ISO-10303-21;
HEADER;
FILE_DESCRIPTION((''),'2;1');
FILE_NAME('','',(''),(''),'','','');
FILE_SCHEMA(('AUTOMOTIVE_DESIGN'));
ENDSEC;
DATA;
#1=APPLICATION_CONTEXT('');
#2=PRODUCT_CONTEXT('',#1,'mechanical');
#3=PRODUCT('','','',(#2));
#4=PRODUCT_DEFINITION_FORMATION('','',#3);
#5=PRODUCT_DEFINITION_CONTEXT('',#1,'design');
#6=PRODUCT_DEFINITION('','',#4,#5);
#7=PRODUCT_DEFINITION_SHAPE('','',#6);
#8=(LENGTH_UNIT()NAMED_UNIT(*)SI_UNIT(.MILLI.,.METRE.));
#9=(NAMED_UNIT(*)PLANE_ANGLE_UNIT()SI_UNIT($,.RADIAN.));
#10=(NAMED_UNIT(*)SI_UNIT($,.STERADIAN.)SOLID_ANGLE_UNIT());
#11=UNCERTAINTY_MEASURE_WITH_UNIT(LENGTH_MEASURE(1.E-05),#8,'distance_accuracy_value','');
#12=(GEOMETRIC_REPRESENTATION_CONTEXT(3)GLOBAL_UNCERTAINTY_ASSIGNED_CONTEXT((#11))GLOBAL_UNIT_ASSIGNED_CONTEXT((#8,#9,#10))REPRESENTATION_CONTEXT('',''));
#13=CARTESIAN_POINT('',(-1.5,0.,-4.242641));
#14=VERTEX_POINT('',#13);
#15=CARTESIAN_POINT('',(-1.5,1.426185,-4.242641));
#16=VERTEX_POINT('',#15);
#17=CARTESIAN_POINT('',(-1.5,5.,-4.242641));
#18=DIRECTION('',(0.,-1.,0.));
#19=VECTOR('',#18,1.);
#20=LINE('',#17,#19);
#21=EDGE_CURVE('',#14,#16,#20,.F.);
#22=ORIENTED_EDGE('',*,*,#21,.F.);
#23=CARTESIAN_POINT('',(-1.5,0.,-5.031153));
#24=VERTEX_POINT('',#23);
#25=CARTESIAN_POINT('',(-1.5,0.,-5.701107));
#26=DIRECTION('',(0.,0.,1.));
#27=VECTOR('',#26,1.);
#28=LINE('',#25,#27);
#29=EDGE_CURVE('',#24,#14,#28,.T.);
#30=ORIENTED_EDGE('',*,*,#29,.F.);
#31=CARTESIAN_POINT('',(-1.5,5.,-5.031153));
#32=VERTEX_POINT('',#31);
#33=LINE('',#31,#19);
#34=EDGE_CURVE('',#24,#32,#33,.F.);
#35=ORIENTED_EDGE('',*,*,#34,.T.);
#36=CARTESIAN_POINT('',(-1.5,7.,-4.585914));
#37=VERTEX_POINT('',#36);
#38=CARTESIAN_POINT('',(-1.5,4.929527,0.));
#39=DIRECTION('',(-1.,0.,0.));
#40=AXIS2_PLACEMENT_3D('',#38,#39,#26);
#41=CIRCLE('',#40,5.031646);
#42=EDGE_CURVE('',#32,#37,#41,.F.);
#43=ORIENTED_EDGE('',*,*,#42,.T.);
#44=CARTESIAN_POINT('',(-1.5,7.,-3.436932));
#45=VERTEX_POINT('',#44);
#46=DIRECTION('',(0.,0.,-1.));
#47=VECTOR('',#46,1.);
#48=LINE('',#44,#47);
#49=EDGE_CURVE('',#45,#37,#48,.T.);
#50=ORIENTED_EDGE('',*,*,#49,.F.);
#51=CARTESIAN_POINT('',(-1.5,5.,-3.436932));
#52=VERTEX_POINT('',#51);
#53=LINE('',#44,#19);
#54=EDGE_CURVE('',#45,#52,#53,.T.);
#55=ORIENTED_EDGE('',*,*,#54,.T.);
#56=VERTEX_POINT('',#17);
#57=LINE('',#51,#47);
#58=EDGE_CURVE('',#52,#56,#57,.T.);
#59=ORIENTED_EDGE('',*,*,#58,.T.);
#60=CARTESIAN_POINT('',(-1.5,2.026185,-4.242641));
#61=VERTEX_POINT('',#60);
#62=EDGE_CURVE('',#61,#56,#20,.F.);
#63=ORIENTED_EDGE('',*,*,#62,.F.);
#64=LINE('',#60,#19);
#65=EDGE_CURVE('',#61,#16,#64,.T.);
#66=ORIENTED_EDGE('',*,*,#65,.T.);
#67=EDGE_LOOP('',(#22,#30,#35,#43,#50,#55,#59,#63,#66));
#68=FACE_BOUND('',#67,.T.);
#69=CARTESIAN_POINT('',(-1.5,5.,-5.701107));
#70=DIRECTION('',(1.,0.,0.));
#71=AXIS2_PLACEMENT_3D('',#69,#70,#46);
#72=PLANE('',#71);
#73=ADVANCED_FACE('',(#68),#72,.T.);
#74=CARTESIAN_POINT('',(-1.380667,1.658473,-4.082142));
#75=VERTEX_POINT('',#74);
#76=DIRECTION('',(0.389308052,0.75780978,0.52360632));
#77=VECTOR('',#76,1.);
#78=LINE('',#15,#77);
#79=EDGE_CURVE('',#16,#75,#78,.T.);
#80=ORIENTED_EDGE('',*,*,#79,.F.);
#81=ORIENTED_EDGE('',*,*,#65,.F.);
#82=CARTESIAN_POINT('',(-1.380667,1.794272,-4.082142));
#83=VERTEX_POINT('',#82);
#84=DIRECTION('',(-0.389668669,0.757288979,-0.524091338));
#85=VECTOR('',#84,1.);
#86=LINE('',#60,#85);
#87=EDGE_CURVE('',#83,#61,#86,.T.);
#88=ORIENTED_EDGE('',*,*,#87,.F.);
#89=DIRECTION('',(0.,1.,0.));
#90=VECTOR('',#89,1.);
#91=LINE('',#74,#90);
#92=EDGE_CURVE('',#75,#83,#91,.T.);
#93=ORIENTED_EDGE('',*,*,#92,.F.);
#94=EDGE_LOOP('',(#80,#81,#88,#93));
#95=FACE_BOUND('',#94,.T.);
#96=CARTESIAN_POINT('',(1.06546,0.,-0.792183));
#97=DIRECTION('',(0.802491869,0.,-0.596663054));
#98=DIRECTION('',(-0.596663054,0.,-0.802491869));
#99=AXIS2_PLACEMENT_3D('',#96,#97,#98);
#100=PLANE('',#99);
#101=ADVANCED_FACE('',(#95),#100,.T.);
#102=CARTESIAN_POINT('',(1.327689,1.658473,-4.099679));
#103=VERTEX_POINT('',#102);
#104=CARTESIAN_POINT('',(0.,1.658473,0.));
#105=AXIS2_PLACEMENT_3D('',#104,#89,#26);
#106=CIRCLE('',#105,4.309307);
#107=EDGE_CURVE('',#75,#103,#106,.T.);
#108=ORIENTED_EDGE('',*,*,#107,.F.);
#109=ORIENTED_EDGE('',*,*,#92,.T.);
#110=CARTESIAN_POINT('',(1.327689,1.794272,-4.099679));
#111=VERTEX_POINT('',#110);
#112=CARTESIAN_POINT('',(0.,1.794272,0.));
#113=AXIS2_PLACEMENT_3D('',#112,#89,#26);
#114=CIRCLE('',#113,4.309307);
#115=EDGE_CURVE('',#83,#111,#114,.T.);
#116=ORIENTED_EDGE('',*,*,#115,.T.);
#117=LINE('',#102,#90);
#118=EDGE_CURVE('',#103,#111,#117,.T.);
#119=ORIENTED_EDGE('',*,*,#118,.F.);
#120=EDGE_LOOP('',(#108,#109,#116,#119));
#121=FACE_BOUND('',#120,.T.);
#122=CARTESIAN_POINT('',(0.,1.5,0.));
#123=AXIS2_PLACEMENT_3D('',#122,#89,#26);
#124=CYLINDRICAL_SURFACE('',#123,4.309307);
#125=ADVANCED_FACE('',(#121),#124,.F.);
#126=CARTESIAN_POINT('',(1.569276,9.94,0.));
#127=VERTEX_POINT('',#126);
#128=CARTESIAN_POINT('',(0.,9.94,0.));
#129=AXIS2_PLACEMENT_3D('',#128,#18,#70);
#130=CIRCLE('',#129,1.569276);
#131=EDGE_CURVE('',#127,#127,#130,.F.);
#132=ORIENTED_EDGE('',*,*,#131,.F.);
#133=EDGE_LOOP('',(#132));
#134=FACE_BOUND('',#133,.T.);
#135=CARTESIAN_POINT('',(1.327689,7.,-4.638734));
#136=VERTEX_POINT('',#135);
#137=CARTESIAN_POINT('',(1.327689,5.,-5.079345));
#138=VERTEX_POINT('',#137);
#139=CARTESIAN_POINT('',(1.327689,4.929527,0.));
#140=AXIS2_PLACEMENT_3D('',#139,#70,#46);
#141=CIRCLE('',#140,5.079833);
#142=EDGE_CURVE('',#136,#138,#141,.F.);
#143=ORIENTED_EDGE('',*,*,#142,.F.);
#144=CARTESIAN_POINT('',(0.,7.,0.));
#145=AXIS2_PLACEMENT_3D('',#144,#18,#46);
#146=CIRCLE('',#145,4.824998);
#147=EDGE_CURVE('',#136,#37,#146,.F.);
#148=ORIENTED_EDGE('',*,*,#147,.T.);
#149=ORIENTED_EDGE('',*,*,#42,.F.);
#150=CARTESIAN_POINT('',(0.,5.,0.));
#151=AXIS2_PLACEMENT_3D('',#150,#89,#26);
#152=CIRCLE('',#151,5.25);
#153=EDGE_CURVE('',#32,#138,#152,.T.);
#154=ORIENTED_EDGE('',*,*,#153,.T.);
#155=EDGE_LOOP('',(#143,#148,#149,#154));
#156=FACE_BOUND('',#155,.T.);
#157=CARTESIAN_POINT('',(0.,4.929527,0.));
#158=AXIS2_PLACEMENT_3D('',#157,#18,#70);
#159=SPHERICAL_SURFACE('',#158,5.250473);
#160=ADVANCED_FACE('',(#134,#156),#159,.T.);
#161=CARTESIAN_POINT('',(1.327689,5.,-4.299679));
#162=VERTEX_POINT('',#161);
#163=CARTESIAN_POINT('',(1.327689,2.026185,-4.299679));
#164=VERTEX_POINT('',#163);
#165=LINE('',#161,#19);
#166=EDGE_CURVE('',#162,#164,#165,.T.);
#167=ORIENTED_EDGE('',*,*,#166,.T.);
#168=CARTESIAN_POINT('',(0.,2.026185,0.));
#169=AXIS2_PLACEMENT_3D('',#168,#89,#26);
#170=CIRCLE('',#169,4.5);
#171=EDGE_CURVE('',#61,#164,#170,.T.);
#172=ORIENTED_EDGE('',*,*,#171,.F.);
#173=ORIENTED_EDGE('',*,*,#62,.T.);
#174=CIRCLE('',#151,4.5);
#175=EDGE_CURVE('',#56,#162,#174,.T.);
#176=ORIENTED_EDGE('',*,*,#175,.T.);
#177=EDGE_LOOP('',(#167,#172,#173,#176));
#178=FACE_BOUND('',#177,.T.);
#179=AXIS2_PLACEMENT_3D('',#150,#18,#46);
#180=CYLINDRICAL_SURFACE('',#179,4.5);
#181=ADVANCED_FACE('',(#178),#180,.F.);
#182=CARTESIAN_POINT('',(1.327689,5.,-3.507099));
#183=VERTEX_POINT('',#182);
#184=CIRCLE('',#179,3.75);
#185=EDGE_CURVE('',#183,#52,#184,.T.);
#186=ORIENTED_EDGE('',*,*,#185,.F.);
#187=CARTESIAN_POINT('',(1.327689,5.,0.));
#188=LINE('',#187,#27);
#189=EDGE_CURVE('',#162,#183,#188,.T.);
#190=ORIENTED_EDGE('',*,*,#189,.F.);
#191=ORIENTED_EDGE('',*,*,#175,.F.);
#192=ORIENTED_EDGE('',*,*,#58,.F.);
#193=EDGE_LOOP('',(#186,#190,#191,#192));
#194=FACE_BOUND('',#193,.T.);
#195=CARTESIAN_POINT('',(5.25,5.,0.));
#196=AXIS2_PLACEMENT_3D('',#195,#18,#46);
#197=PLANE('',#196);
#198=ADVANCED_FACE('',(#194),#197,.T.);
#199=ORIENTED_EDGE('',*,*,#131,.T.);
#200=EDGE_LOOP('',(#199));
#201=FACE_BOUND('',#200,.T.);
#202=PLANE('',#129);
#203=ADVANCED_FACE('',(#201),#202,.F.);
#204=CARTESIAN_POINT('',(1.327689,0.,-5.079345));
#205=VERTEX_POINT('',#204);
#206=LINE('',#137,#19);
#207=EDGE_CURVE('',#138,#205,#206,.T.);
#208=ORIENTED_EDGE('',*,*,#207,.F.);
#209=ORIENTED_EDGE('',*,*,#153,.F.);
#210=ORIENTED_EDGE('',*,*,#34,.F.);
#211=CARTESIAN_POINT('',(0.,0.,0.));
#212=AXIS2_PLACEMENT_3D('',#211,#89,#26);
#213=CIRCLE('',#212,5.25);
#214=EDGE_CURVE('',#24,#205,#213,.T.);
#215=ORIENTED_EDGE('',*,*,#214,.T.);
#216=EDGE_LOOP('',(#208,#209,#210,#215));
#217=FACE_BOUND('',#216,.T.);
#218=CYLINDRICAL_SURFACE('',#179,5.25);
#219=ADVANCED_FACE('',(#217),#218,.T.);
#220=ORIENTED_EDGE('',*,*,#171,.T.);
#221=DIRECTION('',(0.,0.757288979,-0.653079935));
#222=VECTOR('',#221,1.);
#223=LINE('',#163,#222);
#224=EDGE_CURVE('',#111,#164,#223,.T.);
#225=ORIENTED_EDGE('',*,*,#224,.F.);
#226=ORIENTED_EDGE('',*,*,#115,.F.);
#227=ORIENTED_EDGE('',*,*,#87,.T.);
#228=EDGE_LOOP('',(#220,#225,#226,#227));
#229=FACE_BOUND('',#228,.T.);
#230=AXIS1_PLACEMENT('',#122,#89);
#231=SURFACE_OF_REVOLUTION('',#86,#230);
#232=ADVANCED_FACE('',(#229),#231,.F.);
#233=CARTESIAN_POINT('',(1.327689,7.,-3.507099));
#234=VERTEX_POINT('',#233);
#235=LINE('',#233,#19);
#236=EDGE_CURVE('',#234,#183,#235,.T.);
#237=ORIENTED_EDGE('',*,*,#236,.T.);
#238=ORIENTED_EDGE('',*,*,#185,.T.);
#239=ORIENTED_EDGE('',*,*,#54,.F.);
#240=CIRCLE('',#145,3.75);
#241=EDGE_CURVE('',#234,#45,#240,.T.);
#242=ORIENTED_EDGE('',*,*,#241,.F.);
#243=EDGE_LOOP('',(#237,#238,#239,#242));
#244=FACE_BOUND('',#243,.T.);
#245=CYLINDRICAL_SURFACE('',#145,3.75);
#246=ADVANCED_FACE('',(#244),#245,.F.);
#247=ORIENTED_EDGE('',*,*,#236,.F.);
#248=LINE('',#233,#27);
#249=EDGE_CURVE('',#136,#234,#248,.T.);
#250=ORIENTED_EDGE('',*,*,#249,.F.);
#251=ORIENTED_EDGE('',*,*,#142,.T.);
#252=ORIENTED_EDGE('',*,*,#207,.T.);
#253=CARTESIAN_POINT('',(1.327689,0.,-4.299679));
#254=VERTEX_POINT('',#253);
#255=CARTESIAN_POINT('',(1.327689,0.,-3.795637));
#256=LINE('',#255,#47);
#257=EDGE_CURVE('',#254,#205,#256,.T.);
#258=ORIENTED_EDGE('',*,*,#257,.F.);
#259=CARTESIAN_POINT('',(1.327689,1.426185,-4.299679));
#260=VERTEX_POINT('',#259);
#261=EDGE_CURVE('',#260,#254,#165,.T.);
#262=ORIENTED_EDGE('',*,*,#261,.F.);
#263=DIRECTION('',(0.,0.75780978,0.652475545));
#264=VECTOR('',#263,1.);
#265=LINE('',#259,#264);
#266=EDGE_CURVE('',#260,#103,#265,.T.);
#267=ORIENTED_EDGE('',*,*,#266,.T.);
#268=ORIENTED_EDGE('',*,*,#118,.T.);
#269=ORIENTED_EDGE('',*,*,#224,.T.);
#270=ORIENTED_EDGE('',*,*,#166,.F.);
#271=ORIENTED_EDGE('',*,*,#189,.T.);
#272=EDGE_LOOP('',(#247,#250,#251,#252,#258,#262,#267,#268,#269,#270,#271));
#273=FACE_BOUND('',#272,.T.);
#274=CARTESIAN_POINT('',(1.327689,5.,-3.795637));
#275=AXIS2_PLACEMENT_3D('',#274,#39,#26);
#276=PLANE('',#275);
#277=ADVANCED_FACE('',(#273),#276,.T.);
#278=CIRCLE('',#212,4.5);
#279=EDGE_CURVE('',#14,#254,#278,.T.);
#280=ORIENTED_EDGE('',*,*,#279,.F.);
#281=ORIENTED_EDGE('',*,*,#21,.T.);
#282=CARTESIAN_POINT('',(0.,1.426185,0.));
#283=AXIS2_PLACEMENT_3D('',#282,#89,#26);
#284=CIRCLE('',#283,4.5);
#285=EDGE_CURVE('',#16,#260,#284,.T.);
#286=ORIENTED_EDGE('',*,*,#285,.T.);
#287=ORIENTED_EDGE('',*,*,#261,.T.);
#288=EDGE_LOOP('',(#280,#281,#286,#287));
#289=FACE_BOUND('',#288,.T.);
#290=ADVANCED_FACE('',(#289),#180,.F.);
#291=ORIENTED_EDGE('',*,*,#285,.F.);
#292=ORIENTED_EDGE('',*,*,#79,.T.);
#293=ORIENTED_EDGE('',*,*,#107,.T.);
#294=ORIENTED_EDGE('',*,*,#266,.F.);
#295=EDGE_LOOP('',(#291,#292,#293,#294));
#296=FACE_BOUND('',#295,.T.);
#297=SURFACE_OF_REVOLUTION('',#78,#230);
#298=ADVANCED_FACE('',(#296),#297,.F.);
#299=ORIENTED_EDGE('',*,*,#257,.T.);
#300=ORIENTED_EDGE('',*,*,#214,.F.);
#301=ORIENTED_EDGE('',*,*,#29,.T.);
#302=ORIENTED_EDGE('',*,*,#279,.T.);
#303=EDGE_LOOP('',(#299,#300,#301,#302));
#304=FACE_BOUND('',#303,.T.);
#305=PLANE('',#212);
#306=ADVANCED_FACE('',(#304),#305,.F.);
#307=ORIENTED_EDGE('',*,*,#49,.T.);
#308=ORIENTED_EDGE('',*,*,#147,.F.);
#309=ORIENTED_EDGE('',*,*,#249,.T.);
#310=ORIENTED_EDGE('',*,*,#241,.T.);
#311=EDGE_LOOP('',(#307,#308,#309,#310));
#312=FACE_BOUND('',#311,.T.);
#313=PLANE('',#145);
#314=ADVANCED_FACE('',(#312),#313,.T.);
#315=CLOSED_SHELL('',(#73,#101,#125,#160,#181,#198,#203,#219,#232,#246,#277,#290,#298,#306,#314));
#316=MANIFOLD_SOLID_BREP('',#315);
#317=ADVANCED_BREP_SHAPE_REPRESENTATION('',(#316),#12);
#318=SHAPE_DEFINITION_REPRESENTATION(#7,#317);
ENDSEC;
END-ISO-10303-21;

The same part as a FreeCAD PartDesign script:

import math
import FreeCAD as App
import Part
import Sketcher

V = App.Vector

doc = App.newDocument("Part")
body = doc.addObject("PartDesign::Body", "Body")

sketch1 = body.newObject("Sketcher::SketchObject", "Sketch")
sketch1.AttachmentSupport = (doc.getObject("XZ_Plane"), [""])
sketch1.MapMode = "FlatFace"
sketch1.addGeometry(Part.Circle(V(0, 0, 0), V(0, 0, 1), 5.25), False)
sketch1.addGeometry(Part.Circle(V(0, 0, 0), V(0, 0, 1), 4.5), False)
sketch1.addConstraint(Sketcher.Constraint("Coincident", 0, 3, -1, 1))
sketch1.addConstraint(Sketcher.Constraint("Coincident", 1, 3, -1, 1))
sketch1.addConstraint(Sketcher.Constraint("Diameter", 1, 9.0))
sketch1.addConstraint(Sketcher.Constraint("Diameter", 0, 10.5))
pad1 = body.newObject("PartDesign::Pad", "Pad")
pad1.Profile = sketch1
pad1.Length = 5
pad1.Reversed = True

sketch2 = body.newObject("Sketcher::SketchObject", "Sketch001")
sketch2.AttachmentSupport = (doc.getObject("XZ_Plane"), [""])
sketch2.MapMode = "FlatFace"
sketch2.addGeometry(Part.LineSegment(V(1.327689, -3.795637, 0), V(1.327689, -5.701107, 0)), False)
sketch2.addGeometry(Part.LineSegment(V(1.327689, -5.701107, 0), V(-1.5, -5.701107, 0)), False)
sketch2.addGeometry(Part.LineSegment(V(-1.5, -5.701107, 0), V(-1.5, -3.701107, 0)), False)
sketch2.addGeometry(Part.LineSegment(V(-1.5, -3.701107, 0), V(1.327689, -3.795637, 0)), False)
sketch2.addConstraint(Sketcher.Constraint("Coincident", 0, 2, 1, 1))
sketch2.addConstraint(Sketcher.Constraint("Coincident", 1, 2, 2, 1))
sketch2.addConstraint(Sketcher.Constraint("Coincident", 2, 2, 3, 1))
sketch2.addConstraint(Sketcher.Constraint("Coincident", 3, 2, 0, 1))
sketch2.addConstraint(Sketcher.Constraint("Vertical", 0))
sketch2.addConstraint(Sketcher.Constraint("Horizontal", 1))
sketch2.addConstraint(Sketcher.Constraint("Vertical", 2))
sketch2.addConstraint(Sketcher.Constraint("DistanceY", 2, 1, 2, 2, 2.0))
sketch2.addConstraint(Sketcher.Constraint("DistanceX", 1, 2, -1, 1, 1.5))
sketch2.addConstraint(Sketcher.Constraint("DistanceX", 1, 2, 1, 1, 2.827689))
sketch2.addConstraint(Sketcher.Constraint("DistanceY", 0, 2, 0, 1, 1.90547))
sketch2.addConstraint(Sketcher.Constraint("DistanceY", 0, 2, -1, 1, 5.701107))
pocket1 = body.newObject("PartDesign::Pocket", "Pocket")
pocket1.Profile = sketch2
pocket1.Length = 5

sketch3 = body.newObject("Sketcher::SketchObject", "Sketch002")
sketch3.AttachmentSupport = (doc.getObject("XY_Plane"), [""])
sketch3.MapMode = "FlatFace"
sketch3.addGeometry(Part.LineSegment(V(0, 5, 0), V(5.25, 5, 0)), False)
sketch3.addGeometry(Part.ArcOfCircle(Part.Circle(V(0, 4.929527, 0), V(0, 0, 1), 5.250473), math.radians(0.769059), math.radians(90)), False)
sketch3.addGeometry(Part.LineSegment(V(0, 10.18, 0), V(0, 5, 0)), False)
sketch3.addConstraint(Sketcher.Constraint("Coincident", 0, 2, 1, 1))
sketch3.addConstraint(Sketcher.Constraint("Coincident", 1, 2, 2, 1))
sketch3.addConstraint(Sketcher.Constraint("Coincident", 2, 2, 0, 1))
sketch3.addConstraint(Sketcher.Constraint("Horizontal", 0))
sketch3.addConstraint(Sketcher.Constraint("Vertical", 2))
sketch3.addConstraint(Sketcher.Constraint("PointOnObject", 1, 3, -2))
sketch3.addConstraint(Sketcher.Constraint("PointOnObject", 1, 2, -2))
sketch3.addConstraint(Sketcher.Constraint("DistanceY", -1, 1, 0, 2, 5.0))
sketch3.addConstraint(Sketcher.Constraint("DistanceX", 0, 1, 0, 2, 5.25))
sketch3.addConstraint(Sketcher.Constraint("DistanceY", 2, 2, 2, 1, 5.18))
revolution = body.newObject("PartDesign::Revolution", "Revolution")
revolution.Profile = sketch3
revolution.ReferenceAxis = (sketch3, ["V_Axis"])
revolution.Angle = 360

sketch4 = body.newObject("Sketcher::SketchObject", "Sketch003")
sketch4.AttachmentSupport = (doc.getObject("XZ_Plane"), [""])
sketch4.MapMode = "FlatFace"
sketch4.AttachmentOffset = App.Placement(V(0, 0, -5), App.Rotation())
sketch4.addGeometry(Part.LineSegment(V(-1.5, -3.436932, 0), V(-1.5, -6, 0)), False)
sketch4.addGeometry(Part.LineSegment(V(-1.5, -6, 0), V(1.327689, -6, 0)), False)
sketch4.addGeometry(Part.LineSegment(V(1.327689, -6, 0), V(1.327689, -3.507099, 0)), False)
sketch4.addGeometry(Part.ArcOfCircle(Part.Circle(V(0, 0, 0), V(0, 0, 1), 3.75), math.radians(-69.264741), math.radians(246.421822)), False)
sketch4.addConstraint(Sketcher.Constraint("Coincident", 0, 2, 1, 1))
sketch4.addConstraint(Sketcher.Constraint("Coincident", 1, 2, 2, 1))
sketch4.addConstraint(Sketcher.Constraint("Coincident", 2, 2, 3, 1))
sketch4.addConstraint(Sketcher.Constraint("Coincident", 3, 2, 0, 1))
sketch4.addConstraint(Sketcher.Constraint("Vertical", 0))
sketch4.addConstraint(Sketcher.Constraint("Horizontal", 1))
sketch4.addConstraint(Sketcher.Constraint("Vertical", 2))
sketch4.addConstraint(Sketcher.Constraint("Coincident", 3, 3, -1, 1))
sketch4.addConstraint(Sketcher.Constraint("Radius", 3, 3.75))
sketch4.addConstraint(Sketcher.Constraint("DistanceY", 0, 2, -1, 1, 6.0))
sketch4.addConstraint(Sketcher.Constraint("DistanceX", 0, 2, -1, 1, 1.5))
sketch4.addConstraint(Sketcher.Constraint("DistanceY", 2, 1, 2, 2, 2.492901))
pocket2 = body.newObject("PartDesign::Pocket", "Pocket001")
pocket2.Profile = sketch4
pocket2.Length = 2

sketch5 = body.newObject("Sketcher::SketchObject", "Sketch004")
sketch5.AttachmentSupport = (doc.getObject("XZ_Plane"), [""])
sketch5.MapMode = "FlatFace"
sketch5.AttachmentOffset = App.Placement(V(0, 0, -10.29), App.Rotation())
sketch5.addGeometry(Part.Circle(V(0, 0, 0), V(0, 0, 1), 2), False)
sketch5.addConstraint(Sketcher.Constraint("Coincident", 0, 3, -1, 1))
sketch5.addConstraint(Sketcher.Constraint("Diameter", 0, 4.0))
pocket3 = body.newObject("PartDesign::Pocket", "Pocket002")
pocket3.Profile = sketch5
pocket3.Length = 0.35
pocket3.Reversed = True

sketch6 = body.newObject("Sketcher::SketchObject", "Sketch005")
sketch6.AttachmentSupport = (doc.getObject("YZ_Plane"), [""])
sketch6.MapMode = "FlatFace"
sketch6.AttachmentOffset = App.Placement(V(0, 0, 1.327689), App.Rotation())
sketch6.addGeometry(Part.LineSegment(V(2.026185, -4.299679, 0), V(1.426185, -4.299679, 0)), False)
sketch6.addGeometry(Part.LineSegment(V(1.426185, -4.299679, 0), V(1.658473, -4.099679, 0)), False)
sketch6.addGeometry(Part.LineSegment(V(1.658473, -4.099679, 0), V(1.794272, -4.099679, 0)), False)
sketch6.addGeometry(Part.LineSegment(V(1.794272, -4.099679, 0), V(2.026185, -4.299679, 0)), False)
sketch6.addConstraint(Sketcher.Constraint("Coincident", 0, 2, 1, 1))
sketch6.addConstraint(Sketcher.Constraint("Coincident", 1, 2, 2, 1))
sketch6.addConstraint(Sketcher.Constraint("Coincident", 2, 2, 3, 1))
sketch6.addConstraint(Sketcher.Constraint("Coincident", 3, 2, 0, 1))
sketch6.addConstraint(Sketcher.Constraint("Horizontal", 0))
sketch6.addConstraint(Sketcher.Constraint("Horizontal", 2))
sketch6.addConstraint(Sketcher.Constraint("DistanceX", 0, 2, 0, 1, 0.6))
sketch6.addConstraint(Sketcher.Constraint("DistanceY", 0, 2, 1, 2, 0.2))
sketch6.addConstraint(Sketcher.Constraint("DistanceX", 2, 1, 2, 2, 0.135799))
sketch6.addConstraint(Sketcher.Constraint("Distance", 3, 0.306241))
sketch6.addConstraint(Sketcher.Constraint("DistanceY", 0, 2, -1, 1, 4.299679))
sketch6.addConstraint(Sketcher.Constraint("DistanceX", -1, 1, 0, 2, 1.426185))

sketch7 = body.newObject("Sketcher::SketchObject", "Sketch006")
sketch7.AttachmentSupport = (doc.getObject("XZ_Plane"), [""])
sketch7.MapMode = "FlatFace"
sketch7.AttachmentOffset = App.Placement(V(0, 0, -1.5), App.Rotation())
sketch7.addGeometry(Part.ArcOfCircle(Part.Circle(V(0, 0, 0), V(0, 0, 1), 4.5), math.radians(-72.839942), math.radians(250.528779)), False)
sketch7.addConstraint(Sketcher.Constraint("Coincident", 0, 3, -1, 1))
sketch7.addConstraint(Sketcher.Constraint("Radius", 0, 4.5))
sketch7.addConstraint(Sketcher.Constraint("DistanceX", 0, 2, -1, 1, 1.5))
sketch7.addConstraint(Sketcher.Constraint("DistanceX", -1, 1, 0, 1, 1.327689))
doc.recompute()

additivepipe = body.newObject("PartDesign::AdditivePipe", "AdditivePipe")
additivepipe.Profile = sketch6
additivepipe.Spine = (sketch7, ["Edge1"])

doc.recompute()
